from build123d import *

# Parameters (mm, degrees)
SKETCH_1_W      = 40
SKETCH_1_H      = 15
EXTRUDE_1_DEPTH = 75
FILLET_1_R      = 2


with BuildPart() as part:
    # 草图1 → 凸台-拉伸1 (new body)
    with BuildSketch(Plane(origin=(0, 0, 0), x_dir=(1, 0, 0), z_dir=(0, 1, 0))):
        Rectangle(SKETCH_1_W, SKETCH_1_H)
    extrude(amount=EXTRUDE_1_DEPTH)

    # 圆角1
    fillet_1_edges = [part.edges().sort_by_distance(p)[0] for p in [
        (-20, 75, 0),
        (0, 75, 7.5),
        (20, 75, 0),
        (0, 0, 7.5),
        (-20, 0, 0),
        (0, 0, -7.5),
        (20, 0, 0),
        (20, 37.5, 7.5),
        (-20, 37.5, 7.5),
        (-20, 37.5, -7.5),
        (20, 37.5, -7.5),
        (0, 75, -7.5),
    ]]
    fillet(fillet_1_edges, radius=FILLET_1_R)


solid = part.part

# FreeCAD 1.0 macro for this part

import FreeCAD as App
import Part
import Sketcher
from FreeCAD import Vector

doc = App.newDocument("Part")
body = doc.addObject("PartDesign::Body", "Body")

# Sketch on XZ plane
sketch1 = doc.addObject("Sketcher::SketchObject", "Sketch")
body.addObject(sketch1)
sketch1.AttachmentSupport = (doc.XZ_Plane, [""])
sketch1.MapMode = "FlatFace"
sketch1.addGeometry(Part.LineSegment(Vector(-20, -7.5, 0), Vector(-20, 7.5, 0)), False)
sketch1.addGeometry(Part.LineSegment(Vector(-20, 7.5, 0), Vector(20, 7.5, 0)), False)
sketch1.addGeometry(Part.LineSegment(Vector(20, 7.5, 0), Vector(20, -7.5, 0)), False)
sketch1.addGeometry(Part.LineSegment(Vector(20, -7.5, 0), Vector(-20, -7.5, 0)), False)
sketch1.addConstraint(Sketcher.Constraint("Coincident", 0, 2, 1, 1))
sketch1.addConstraint(Sketcher.Constraint("Coincident", 1, 2, 2, 1))
sketch1.addConstraint(Sketcher.Constraint("Coincident", 2, 2, 3, 1))
sketch1.addConstraint(Sketcher.Constraint("Coincident", 3, 2, 0, 1))
sketch1.addConstraint(Sketcher.Constraint("Vertical", 0))
sketch1.addConstraint(Sketcher.Constraint("Horizontal", 1))
sketch1.addConstraint(Sketcher.Constraint("Vertical", 2))
sketch1.addConstraint(Sketcher.Constraint("Horizontal", 3))
sketch1.addConstraint(Sketcher.Constraint("Symmetric", 0, 2, 2, 2, -1, 1))
sketch1.addConstraint(Sketcher.Constraint("DistanceX", 1, 1, 1, 2, 40.0))
sketch1.addConstraint(Sketcher.Constraint("DistanceY", 0, 1, 0, 2, 15.0))
pad1 = doc.addObject("PartDesign::Pad", "Pad")
body.addObject(pad1)
pad1.Profile = sketch1
pad1.Length = 75
pad1.Reversed = True
doc.recompute()

fillet = doc.addObject("PartDesign::Fillet", "Fillet")
body.addObject(fillet)
fillet.Base = (pad1, ["Edge1"])
fillet.UseAllEdges = True
fillet.Radius = 2

doc.recompute()
